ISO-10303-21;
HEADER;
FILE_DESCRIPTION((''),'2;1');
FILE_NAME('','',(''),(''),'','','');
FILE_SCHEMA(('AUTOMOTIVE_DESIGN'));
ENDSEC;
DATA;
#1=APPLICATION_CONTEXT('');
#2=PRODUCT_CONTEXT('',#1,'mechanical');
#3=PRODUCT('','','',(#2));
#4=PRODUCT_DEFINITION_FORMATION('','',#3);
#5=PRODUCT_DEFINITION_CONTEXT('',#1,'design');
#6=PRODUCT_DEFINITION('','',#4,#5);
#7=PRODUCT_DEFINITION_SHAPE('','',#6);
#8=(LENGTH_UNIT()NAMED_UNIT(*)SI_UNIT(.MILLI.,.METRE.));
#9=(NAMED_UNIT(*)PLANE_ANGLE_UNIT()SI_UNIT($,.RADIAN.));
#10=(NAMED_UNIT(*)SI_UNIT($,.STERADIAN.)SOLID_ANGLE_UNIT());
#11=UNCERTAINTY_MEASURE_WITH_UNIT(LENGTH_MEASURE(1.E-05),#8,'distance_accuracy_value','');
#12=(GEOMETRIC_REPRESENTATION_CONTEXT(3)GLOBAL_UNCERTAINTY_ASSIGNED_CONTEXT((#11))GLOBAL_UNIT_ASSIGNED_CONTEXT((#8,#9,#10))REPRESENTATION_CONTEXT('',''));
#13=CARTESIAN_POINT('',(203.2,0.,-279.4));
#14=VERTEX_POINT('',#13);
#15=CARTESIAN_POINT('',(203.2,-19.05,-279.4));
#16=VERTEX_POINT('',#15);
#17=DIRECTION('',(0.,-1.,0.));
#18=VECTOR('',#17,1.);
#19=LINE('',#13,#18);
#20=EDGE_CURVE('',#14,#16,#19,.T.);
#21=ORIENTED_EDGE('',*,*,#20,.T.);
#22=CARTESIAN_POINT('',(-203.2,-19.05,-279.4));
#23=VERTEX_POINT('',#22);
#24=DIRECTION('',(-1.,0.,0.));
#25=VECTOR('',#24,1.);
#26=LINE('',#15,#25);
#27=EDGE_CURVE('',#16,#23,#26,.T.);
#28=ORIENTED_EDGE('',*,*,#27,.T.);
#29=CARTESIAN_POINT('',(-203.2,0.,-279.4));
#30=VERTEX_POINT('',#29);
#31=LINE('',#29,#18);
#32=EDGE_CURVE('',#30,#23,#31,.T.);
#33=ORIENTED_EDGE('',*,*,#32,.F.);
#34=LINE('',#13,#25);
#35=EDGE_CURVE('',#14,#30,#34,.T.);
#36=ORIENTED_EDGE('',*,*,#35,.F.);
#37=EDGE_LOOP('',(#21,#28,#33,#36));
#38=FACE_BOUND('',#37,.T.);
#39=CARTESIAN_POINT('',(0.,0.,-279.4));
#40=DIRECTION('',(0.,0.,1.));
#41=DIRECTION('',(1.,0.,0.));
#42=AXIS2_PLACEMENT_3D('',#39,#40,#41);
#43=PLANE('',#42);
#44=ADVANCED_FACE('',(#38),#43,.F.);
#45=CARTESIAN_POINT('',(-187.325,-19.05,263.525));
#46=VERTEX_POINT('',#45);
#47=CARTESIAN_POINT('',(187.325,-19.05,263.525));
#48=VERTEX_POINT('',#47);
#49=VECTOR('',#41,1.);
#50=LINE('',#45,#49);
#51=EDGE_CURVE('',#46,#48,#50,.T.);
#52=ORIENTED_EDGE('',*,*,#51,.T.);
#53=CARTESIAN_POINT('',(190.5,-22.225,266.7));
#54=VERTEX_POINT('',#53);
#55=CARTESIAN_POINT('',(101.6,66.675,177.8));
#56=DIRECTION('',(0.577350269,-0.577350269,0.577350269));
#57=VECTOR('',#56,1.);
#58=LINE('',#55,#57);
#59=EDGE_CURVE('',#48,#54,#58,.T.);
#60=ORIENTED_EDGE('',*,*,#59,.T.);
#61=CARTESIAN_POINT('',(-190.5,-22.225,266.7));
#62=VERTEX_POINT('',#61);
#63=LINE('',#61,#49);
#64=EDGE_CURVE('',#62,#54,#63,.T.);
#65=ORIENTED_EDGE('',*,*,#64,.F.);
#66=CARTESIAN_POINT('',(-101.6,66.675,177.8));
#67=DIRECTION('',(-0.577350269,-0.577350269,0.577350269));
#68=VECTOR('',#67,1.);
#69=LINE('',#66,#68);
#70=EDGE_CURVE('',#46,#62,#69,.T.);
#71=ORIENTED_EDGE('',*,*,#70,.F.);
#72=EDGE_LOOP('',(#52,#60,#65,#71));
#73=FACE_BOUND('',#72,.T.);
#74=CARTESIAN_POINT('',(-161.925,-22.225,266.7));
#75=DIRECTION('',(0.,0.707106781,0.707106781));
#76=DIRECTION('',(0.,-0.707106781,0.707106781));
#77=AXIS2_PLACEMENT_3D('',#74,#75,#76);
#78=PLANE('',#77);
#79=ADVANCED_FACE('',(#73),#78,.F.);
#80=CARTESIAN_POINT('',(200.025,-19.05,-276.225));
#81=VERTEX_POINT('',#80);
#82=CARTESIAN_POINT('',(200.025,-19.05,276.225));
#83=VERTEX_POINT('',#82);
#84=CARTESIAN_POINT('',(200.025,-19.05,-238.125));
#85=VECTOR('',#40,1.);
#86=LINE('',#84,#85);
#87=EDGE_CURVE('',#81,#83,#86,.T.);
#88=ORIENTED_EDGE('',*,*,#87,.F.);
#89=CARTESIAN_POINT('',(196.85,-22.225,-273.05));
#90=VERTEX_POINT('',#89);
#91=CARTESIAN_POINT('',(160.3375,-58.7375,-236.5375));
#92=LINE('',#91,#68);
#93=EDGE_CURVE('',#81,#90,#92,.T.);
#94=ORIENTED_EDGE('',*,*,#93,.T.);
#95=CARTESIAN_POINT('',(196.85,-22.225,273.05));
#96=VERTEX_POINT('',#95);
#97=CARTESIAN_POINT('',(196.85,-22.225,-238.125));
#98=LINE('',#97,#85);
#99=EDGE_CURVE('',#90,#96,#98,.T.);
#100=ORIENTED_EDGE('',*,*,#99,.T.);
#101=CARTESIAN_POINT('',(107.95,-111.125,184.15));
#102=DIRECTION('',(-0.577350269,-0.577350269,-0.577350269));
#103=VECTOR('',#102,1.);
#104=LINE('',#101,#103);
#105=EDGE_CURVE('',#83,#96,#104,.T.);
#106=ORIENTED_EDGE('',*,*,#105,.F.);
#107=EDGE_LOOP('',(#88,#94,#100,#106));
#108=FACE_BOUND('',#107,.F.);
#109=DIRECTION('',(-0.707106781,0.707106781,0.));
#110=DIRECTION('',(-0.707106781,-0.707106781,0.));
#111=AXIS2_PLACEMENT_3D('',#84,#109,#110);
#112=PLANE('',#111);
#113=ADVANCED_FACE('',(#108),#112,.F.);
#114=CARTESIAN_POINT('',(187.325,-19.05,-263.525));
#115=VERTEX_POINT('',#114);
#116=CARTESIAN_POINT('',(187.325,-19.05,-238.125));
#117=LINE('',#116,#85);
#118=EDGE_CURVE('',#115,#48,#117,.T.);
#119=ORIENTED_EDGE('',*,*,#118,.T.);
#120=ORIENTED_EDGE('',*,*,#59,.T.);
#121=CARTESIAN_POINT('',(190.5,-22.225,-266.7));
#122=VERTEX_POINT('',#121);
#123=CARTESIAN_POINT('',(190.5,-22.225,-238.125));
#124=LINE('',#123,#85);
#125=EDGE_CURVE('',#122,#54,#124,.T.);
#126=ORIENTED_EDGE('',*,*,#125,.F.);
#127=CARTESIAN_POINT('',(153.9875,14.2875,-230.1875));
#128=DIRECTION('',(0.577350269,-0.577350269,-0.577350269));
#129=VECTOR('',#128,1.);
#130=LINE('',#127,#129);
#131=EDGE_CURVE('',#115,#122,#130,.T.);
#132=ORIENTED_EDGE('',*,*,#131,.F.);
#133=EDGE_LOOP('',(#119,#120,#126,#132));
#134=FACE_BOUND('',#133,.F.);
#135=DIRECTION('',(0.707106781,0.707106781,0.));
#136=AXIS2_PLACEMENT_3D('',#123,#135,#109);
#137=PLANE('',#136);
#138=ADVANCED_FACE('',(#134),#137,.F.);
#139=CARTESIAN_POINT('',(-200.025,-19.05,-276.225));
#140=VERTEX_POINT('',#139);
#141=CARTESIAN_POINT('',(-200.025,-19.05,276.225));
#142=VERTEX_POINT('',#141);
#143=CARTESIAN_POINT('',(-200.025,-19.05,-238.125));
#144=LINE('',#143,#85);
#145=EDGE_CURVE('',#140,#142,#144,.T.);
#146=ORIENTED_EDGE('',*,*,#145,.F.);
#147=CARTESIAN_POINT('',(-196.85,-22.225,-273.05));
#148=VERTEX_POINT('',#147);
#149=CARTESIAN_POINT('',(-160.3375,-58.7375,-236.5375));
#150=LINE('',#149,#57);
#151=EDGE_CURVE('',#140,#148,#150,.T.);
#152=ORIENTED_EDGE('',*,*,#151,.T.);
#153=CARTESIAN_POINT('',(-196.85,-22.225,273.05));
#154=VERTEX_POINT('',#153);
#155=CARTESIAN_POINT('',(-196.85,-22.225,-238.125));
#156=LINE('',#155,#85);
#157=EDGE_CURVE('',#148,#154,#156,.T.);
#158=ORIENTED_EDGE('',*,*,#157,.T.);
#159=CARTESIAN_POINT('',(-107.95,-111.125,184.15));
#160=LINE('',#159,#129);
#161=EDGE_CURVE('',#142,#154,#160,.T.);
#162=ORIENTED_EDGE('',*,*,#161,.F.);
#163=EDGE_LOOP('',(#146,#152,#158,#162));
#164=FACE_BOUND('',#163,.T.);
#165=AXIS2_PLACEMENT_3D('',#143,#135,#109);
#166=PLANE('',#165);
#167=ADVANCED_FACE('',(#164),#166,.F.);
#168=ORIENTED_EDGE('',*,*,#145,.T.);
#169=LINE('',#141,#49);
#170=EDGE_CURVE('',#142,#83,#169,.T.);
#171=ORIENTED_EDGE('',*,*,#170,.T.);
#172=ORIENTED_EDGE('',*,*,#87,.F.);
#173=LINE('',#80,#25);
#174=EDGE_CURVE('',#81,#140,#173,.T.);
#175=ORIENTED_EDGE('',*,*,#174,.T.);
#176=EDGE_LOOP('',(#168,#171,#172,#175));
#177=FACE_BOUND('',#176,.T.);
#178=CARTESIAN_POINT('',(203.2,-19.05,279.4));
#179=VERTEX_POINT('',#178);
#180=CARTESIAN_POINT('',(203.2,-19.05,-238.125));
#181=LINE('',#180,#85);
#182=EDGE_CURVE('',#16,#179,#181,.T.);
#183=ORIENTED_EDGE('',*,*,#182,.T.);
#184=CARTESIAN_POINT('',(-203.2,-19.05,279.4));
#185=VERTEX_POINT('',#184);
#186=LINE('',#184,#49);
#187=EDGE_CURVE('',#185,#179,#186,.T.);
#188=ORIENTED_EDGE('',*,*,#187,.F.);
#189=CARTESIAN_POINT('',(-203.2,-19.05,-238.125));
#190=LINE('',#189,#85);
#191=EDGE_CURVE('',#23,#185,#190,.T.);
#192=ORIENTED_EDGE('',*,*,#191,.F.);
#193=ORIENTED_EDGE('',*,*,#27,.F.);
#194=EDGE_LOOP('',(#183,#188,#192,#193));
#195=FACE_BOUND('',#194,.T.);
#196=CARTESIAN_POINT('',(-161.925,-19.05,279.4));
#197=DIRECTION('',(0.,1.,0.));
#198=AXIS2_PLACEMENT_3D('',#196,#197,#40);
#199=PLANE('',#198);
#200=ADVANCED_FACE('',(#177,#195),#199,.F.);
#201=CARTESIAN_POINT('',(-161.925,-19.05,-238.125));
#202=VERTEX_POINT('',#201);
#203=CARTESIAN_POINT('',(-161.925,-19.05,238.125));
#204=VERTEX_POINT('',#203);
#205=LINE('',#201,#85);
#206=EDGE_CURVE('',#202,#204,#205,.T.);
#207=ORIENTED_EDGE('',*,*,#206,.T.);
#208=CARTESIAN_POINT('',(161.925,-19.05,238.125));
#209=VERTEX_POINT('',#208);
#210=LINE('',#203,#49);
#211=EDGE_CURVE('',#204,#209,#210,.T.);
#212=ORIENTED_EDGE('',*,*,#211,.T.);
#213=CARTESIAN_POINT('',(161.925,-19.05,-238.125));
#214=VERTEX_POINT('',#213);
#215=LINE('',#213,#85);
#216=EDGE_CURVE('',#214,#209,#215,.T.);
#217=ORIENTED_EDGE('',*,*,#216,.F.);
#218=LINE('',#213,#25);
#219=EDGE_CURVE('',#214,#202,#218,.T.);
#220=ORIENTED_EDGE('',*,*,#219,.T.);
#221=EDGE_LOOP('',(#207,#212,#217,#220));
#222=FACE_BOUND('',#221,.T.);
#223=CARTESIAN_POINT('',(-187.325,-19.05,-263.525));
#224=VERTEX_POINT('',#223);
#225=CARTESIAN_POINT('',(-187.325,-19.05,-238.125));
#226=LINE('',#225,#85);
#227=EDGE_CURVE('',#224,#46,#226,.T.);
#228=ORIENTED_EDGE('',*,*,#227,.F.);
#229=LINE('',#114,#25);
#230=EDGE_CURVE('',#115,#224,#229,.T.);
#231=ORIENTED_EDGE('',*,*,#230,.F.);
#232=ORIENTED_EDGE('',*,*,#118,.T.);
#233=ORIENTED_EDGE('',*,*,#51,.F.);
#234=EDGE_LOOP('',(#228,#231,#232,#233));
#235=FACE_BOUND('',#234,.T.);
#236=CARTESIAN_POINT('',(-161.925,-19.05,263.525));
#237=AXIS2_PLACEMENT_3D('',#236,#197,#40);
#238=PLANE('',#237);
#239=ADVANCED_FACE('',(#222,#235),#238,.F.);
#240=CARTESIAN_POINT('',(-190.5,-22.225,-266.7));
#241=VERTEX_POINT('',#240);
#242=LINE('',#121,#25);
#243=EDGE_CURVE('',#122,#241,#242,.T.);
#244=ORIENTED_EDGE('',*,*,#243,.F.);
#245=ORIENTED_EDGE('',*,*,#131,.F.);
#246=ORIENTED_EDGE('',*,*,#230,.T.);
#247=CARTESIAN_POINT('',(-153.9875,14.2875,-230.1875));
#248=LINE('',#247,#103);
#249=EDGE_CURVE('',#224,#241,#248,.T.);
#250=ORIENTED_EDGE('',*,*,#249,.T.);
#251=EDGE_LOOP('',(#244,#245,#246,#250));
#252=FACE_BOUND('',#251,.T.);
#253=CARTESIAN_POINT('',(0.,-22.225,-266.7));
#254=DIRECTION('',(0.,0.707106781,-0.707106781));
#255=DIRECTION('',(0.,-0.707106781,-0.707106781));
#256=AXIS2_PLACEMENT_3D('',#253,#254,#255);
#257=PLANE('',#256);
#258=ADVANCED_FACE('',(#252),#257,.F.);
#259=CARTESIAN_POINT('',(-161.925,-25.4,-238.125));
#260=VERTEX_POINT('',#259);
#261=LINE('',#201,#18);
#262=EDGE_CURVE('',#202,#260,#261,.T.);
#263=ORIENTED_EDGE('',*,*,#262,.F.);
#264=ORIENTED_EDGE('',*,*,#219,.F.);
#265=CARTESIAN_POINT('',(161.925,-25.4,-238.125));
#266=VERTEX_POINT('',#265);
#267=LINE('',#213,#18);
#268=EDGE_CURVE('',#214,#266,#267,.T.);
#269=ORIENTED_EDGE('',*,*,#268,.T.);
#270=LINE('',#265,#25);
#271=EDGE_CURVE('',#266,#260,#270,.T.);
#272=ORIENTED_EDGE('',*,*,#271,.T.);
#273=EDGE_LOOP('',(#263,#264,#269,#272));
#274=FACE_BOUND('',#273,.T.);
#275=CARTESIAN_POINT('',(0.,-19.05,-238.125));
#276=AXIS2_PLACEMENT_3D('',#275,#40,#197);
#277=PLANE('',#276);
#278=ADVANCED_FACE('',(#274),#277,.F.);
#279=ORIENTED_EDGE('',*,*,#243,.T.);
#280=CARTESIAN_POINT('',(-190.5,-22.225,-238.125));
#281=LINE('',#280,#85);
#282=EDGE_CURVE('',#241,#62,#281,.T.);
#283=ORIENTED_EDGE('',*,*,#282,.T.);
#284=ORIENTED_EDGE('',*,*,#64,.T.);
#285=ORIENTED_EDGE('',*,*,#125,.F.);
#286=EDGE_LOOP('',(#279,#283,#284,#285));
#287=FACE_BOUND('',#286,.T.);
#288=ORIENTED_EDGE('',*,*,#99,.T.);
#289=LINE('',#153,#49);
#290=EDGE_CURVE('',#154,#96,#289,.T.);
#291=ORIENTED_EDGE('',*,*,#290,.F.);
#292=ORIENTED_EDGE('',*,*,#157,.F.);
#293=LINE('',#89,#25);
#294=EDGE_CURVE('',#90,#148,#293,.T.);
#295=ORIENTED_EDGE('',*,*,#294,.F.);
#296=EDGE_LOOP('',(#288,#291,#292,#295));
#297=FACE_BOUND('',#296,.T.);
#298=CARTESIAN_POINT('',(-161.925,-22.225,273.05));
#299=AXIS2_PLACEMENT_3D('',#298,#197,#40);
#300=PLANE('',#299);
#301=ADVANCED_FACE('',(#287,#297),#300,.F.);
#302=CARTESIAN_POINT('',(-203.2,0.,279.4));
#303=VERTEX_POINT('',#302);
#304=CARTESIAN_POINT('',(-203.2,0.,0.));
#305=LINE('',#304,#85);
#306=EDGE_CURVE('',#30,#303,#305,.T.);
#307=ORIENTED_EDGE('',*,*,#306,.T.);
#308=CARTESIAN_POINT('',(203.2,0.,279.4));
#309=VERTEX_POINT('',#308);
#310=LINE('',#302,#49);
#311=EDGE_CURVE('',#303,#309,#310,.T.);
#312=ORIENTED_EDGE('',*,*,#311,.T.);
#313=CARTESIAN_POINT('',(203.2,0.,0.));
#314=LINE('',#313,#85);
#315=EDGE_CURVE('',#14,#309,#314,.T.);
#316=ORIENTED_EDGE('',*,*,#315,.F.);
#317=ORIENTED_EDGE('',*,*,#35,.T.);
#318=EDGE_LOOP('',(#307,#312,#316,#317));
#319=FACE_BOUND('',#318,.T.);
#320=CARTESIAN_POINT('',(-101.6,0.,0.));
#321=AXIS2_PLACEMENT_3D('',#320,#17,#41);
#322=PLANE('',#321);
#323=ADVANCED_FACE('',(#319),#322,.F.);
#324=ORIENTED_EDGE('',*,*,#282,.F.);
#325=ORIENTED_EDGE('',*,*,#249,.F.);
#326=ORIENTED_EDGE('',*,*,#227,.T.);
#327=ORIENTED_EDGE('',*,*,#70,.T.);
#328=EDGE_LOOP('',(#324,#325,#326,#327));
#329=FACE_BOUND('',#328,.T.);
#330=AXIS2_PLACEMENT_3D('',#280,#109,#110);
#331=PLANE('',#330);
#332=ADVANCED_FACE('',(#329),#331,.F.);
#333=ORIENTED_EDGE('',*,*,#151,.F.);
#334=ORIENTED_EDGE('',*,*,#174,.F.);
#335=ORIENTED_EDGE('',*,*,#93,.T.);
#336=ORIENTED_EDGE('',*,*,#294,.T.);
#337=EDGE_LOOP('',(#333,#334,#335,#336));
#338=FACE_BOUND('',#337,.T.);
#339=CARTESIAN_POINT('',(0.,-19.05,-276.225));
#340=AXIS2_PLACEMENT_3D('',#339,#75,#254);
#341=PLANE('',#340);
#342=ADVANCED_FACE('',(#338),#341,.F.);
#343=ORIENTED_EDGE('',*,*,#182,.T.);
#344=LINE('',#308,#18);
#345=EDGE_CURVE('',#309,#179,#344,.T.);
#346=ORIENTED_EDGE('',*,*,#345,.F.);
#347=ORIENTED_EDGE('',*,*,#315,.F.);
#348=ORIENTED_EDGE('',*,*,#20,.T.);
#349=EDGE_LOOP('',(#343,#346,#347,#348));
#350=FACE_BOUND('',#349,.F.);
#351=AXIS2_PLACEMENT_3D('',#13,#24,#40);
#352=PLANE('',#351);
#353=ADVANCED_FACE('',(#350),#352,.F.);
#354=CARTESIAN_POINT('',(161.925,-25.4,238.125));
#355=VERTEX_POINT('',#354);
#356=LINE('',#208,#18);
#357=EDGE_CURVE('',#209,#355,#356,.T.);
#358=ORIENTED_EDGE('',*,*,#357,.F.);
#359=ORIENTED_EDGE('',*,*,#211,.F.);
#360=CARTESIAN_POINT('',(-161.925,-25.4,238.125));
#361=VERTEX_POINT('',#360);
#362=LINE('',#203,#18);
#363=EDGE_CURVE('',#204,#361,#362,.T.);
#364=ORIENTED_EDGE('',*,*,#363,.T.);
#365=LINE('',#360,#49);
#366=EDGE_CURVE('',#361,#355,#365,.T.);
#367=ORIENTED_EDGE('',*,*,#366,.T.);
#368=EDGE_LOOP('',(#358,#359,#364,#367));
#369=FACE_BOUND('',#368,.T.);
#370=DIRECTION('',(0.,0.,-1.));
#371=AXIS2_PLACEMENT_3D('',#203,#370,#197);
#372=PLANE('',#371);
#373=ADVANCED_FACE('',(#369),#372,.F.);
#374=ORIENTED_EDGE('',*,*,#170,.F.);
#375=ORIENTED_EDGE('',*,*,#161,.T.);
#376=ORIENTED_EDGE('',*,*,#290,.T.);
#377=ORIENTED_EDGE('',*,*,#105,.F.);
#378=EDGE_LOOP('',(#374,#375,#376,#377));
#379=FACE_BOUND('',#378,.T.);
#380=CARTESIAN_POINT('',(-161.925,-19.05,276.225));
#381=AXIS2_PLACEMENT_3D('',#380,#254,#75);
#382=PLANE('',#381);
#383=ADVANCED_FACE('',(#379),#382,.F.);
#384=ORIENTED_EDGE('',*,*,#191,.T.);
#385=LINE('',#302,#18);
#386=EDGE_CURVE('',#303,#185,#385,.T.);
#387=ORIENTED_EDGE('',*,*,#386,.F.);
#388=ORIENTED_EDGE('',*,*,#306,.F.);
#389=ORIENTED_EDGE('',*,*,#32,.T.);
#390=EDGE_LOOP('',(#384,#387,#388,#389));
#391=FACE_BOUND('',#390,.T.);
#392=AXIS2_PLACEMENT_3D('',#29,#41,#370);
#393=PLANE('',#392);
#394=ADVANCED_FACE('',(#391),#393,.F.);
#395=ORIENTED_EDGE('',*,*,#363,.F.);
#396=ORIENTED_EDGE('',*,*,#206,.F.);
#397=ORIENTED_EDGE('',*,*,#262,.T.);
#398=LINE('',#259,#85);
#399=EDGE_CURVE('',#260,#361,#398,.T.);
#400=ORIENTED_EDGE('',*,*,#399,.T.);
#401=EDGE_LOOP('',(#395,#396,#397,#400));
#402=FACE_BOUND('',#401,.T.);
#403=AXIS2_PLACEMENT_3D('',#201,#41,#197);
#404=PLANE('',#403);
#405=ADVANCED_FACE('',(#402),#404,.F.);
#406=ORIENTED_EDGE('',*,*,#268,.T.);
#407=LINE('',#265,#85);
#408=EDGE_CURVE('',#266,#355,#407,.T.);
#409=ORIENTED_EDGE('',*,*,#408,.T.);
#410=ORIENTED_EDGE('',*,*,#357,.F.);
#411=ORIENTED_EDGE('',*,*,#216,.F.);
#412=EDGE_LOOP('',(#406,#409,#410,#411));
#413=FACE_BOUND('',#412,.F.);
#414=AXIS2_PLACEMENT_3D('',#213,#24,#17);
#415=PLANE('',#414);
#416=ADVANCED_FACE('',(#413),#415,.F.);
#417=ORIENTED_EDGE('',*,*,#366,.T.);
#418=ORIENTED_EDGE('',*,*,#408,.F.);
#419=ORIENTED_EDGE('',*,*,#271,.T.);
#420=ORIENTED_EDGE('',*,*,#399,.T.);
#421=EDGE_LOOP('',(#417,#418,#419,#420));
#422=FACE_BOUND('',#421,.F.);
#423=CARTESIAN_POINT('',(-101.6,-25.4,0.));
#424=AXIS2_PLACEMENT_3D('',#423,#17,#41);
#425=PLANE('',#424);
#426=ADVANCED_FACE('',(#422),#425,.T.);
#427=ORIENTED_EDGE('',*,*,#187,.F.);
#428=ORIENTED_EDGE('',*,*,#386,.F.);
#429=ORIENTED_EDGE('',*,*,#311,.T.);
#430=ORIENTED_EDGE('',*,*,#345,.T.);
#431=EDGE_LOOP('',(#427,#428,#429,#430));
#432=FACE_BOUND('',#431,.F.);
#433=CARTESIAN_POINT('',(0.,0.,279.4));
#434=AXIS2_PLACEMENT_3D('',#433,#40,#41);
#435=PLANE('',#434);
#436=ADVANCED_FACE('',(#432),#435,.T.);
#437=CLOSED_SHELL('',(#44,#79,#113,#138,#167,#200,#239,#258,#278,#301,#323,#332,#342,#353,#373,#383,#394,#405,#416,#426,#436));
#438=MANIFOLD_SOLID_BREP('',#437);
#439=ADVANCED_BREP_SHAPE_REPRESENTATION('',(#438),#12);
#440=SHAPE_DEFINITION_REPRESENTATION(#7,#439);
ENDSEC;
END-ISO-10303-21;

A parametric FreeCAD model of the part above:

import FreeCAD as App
import Part
import Sketcher

V = App.Vector
Q = App.Units.Quantity


def add_polygon(sketch, points):
    """Adds a closed chain of lines whose ends are joined by coincident constraints."""
    first, n = sketch.GeometryCount, len(points)
    for a, b in zip(points, points[1:] + points[:1]):
        sketch.addGeometry(Part.LineSegment(App.Vector(*a, 0), App.Vector(*b, 0)), False)
    for i in range(n):
        sketch.addConstraint(Sketcher.Constraint("Coincident", first + i, 2, first + (i + 1) % n, 1))

doc = App.newDocument("Part")
params = doc.addObject("Spreadsheet::Sheet", "Params")
for row, (alias, value) in enumerate([
    ("sketch1_width", "8 in"),
    ("sketch1_height", "22 in"),
    ("pad1_length", "1 in"),
    ("sketch2_height", "1 in"),
    ("sketch2_width", "0.25 in"),
    ("sketch3_height", "18.75 in"),
    ("sketch3_width", "6.375 in"),
], start=1):
    params.set(f"A{row}", alias)
    params.set(f"B{row}", "=" + value)
    params.setAlias(f"B{row}", alias)

body = doc.addObject("PartDesign::Body", "Body")

# Sketch on XZ plane
sketch1 = body.newObject("Sketcher::SketchObject", "Sketch")
sketch1.AttachmentSupport = (doc.getObject("XZ_Plane"), [""])
sketch1.MapMode = "FlatFace"
add_polygon(sketch1, [(0, 279), (0, -279), (203, -279), (203, 279)])  # lines 0-3
sketch1.addConstraint([
    Sketcher.Constraint("Vertical", 0),
    Sketcher.Constraint("Horizontal", 1),
    Sketcher.Constraint("Vertical", 2),
    Sketcher.Constraint("Horizontal", 3),
    Sketcher.Constraint("Symmetric", 0, 2, 3, 2, -1, 1),
    Sketcher.Constraint("DistanceX", 1, 1, 1, 2, Q("8 in")),
    Sketcher.Constraint("DistanceY", 0, 2, 0, 1, Q("22 in")),
])
sketch1.setExpression("Constraints[9]", "Params.sketch1_width")
sketch1.setExpression("Constraints[10]", "Params.sketch1_height")
pad1 = body.newObject("PartDesign::Pad", "Pad")
pad1.Profile = sketch1
pad1.setExpression("Length", "Params.pad1_length")

# Sketch on YZ plane
sketch2 = body.newObject("Sketcher::SketchObject", "Sketch001")
sketch2.AttachmentSupport = (doc.getObject("YZ_Plane"), [""])
sketch2.MapMode = "FlatFace"
add_polygon(sketch2, [(-19.1, -263.5), (-19.1, -238.1), (-25.4, -238.1), (-25.4, -279.4), (-19.1, -279.4), (-19.1, -276.2), (-22.2, -273.1), (-22.2, -266.7)])  # lines 0-7
sketch2.addConstraint([
    Sketcher.Constraint("Vertical", 0),
    Sketcher.Constraint("Horizontal", 1),
    Sketcher.Constraint("Vertical", 2),
    Sketcher.Constraint("Horizontal", 3),
    Sketcher.Constraint("Vertical", 4),
    Sketcher.Constraint("Vertical", 6),
    Sketcher.Constraint("Perpendicular", 5, 7),
    Sketcher.Constraint("Vertical", 0, 2, 3, 2),
    Sketcher.Constraint("Equal", 3, 6),
    Sketcher.Constraint("Equal", 5, 7),
    Sketcher.Constraint("DistanceY", 0, 1, 0, 2, Q("1 in")),
    Sketcher.Constraint("DistanceX", 1, 2, -1, 1, Q("1 in")),
    Sketcher.Constraint("DistanceY", 2, 2, -1, 1, Q("11 in")),
    Sketcher.Constraint("DistanceX", 1, 2, 1, 1, Q("0.25 in")),
    Sketcher.Constraint("DistanceY", 6, 2, -1, 1, Q("10.5 in")),
    Sketcher.Constraint("DistanceY", 4, 2, 0, 2, Q("1.5 in")),
])
sketch2.setExpression("Constraints[18]", "Params.sketch2_height")
sketch2.setExpression("Constraints[21]", "Params.sketch2_width")

# Sketch on XZ plane
sketch3 = body.newObject("Sketcher::SketchObject", "Sketch002")
sketch3.AttachmentSupport = (doc.getObject("XZ_Plane"), [""])
sketch3.MapMode = "FlatFace"
sketch3.AttachmentOffset = App.Placement(V(0, 0, 1 * 25.4), App.Rotation())
sketch3.addGeometry([
    Part.LineSegment(V(0, -238, 0), V(162, -238, 0)),
    Part.LineSegment(V(162, -238, 0), V(162, 238, 0)),
    Part.LineSegment(V(162, 238, 0), V(0, 238, 0)),
], False)
sketch3.addConstraint([
    Sketcher.Constraint("Coincident", 0, 2, 1, 1),
    Sketcher.Constraint("Coincident", 1, 2, 2, 1),
    Sketcher.Constraint("Horizontal", 0),
    Sketcher.Constraint("Vertical", 1),
    Sketcher.Constraint("Horizontal", 2),
    Sketcher.Constraint("Symmetric", 0, 1, 2, 2, -1, 1),
    Sketcher.Constraint("PointOnObject", 0, 1, -2),
    Sketcher.Constraint("DistanceY", 1, 1, 1, 2, Q("18.75 in")),
    Sketcher.Constraint("DistanceX", 0, 1, 0, 2, Q("6.375 in")),
])
sketch3.setExpression("Constraints[7]", "Params.sketch3_height")
sketch3.setExpression("Constraints[8]", "Params.sketch3_width")
doc.recompute()

subtractivepipe = body.newObject("PartDesign::SubtractivePipe", "SubtractivePipe")
subtractivepipe.Profile = sketch2
subtractivepipe.Spine = (sketch3, ["Edge1", "Edge2", "Edge3"])
subtractivepipe.Transition = "Right corner"
body2 = doc.addObject("PartDesign::Body", "Body001")
doc.recompute()

body2.BaseFeature = body
doc.recompute()

mirroring = doc.addObject("Part::Mirroring", "Mirroring")
mirroring.Source = body
mirroring.Base = V(0, 0, 0)
mirroring.Normal = V(1, 0, 0)
body3 = doc.addObject("PartDesign::Body", "Body002")
body3.BaseFeature = mirroring
boolean = body2.newObject("PartDesign::Boolean", "Boolean")
boolean.Type = "Fuse"
boolean.addObjects([body3])
doc.recompute()
mirroring.Visibility = False

doc.recompute()
